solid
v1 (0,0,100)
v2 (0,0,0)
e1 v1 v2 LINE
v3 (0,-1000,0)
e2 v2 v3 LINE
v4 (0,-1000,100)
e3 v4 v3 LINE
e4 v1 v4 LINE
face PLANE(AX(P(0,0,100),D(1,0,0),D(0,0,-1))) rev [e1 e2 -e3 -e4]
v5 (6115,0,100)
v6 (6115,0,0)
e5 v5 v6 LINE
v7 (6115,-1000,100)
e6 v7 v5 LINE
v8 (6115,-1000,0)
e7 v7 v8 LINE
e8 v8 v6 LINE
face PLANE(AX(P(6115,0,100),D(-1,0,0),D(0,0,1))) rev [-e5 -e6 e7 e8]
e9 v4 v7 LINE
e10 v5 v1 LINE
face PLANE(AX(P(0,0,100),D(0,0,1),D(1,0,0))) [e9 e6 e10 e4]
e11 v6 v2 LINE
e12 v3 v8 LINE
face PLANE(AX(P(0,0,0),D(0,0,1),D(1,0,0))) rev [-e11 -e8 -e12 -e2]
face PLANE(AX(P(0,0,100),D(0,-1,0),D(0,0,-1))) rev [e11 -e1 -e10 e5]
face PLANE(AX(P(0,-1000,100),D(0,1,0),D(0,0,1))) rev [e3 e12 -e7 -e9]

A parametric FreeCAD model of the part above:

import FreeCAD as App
import Part
import Sketcher
from FreeCAD import Vector

doc = App.newDocument("Part")
body = doc.addObject("PartDesign::Body", "Body")

# Sketch on XY plane
sketch1 = body.newObject("Sketcher::SketchObject", "Sketch")
sketch1.AttachmentSupport = (doc.getObject("XY_Plane"), [""])
sketch1.MapMode = "FlatFace"
sketch1.addGeometry([
    Part.LineSegment(Vector(0, 0, 0), Vector(0, -1000, 0)),
    Part.LineSegment(Vector(0, -1000, 0), Vector(6115, -1000, 0)),
    Part.LineSegment(Vector(6115, -1000, 0), Vector(6115, 0, 0)),
    Part.LineSegment(Vector(6115, 0, 0), Vector(0, 0, 0)),
], False)
sketch1.addConstraint([
    Sketcher.Constraint("Coincident", 0, 2, 1, 1),
    Sketcher.Constraint("Coincident", 1, 2, 2, 1),
    Sketcher.Constraint("Coincident", 2, 2, 3, 1),
    Sketcher.Constraint("Coincident", 3, 2, 0, 1),
    Sketcher.Constraint("Vertical", 0),
    Sketcher.Constraint("Horizontal", 1),
    Sketcher.Constraint("Vertical", 2),
    Sketcher.Constraint("Horizontal", 3),
    Sketcher.Constraint("Coincident", 3, 2, -1, 1),
    Sketcher.Constraint("DistanceX", 1, 1, 1, 2, 6115.0),
    Sketcher.Constraint("DistanceY", 0, 2, 0, 1, 1000.0),
])
pad1 = body.newObject("PartDesign::Pad", "Pad")
pad1.Profile = sketch1
pad1.Length = 100

doc.recompute()
